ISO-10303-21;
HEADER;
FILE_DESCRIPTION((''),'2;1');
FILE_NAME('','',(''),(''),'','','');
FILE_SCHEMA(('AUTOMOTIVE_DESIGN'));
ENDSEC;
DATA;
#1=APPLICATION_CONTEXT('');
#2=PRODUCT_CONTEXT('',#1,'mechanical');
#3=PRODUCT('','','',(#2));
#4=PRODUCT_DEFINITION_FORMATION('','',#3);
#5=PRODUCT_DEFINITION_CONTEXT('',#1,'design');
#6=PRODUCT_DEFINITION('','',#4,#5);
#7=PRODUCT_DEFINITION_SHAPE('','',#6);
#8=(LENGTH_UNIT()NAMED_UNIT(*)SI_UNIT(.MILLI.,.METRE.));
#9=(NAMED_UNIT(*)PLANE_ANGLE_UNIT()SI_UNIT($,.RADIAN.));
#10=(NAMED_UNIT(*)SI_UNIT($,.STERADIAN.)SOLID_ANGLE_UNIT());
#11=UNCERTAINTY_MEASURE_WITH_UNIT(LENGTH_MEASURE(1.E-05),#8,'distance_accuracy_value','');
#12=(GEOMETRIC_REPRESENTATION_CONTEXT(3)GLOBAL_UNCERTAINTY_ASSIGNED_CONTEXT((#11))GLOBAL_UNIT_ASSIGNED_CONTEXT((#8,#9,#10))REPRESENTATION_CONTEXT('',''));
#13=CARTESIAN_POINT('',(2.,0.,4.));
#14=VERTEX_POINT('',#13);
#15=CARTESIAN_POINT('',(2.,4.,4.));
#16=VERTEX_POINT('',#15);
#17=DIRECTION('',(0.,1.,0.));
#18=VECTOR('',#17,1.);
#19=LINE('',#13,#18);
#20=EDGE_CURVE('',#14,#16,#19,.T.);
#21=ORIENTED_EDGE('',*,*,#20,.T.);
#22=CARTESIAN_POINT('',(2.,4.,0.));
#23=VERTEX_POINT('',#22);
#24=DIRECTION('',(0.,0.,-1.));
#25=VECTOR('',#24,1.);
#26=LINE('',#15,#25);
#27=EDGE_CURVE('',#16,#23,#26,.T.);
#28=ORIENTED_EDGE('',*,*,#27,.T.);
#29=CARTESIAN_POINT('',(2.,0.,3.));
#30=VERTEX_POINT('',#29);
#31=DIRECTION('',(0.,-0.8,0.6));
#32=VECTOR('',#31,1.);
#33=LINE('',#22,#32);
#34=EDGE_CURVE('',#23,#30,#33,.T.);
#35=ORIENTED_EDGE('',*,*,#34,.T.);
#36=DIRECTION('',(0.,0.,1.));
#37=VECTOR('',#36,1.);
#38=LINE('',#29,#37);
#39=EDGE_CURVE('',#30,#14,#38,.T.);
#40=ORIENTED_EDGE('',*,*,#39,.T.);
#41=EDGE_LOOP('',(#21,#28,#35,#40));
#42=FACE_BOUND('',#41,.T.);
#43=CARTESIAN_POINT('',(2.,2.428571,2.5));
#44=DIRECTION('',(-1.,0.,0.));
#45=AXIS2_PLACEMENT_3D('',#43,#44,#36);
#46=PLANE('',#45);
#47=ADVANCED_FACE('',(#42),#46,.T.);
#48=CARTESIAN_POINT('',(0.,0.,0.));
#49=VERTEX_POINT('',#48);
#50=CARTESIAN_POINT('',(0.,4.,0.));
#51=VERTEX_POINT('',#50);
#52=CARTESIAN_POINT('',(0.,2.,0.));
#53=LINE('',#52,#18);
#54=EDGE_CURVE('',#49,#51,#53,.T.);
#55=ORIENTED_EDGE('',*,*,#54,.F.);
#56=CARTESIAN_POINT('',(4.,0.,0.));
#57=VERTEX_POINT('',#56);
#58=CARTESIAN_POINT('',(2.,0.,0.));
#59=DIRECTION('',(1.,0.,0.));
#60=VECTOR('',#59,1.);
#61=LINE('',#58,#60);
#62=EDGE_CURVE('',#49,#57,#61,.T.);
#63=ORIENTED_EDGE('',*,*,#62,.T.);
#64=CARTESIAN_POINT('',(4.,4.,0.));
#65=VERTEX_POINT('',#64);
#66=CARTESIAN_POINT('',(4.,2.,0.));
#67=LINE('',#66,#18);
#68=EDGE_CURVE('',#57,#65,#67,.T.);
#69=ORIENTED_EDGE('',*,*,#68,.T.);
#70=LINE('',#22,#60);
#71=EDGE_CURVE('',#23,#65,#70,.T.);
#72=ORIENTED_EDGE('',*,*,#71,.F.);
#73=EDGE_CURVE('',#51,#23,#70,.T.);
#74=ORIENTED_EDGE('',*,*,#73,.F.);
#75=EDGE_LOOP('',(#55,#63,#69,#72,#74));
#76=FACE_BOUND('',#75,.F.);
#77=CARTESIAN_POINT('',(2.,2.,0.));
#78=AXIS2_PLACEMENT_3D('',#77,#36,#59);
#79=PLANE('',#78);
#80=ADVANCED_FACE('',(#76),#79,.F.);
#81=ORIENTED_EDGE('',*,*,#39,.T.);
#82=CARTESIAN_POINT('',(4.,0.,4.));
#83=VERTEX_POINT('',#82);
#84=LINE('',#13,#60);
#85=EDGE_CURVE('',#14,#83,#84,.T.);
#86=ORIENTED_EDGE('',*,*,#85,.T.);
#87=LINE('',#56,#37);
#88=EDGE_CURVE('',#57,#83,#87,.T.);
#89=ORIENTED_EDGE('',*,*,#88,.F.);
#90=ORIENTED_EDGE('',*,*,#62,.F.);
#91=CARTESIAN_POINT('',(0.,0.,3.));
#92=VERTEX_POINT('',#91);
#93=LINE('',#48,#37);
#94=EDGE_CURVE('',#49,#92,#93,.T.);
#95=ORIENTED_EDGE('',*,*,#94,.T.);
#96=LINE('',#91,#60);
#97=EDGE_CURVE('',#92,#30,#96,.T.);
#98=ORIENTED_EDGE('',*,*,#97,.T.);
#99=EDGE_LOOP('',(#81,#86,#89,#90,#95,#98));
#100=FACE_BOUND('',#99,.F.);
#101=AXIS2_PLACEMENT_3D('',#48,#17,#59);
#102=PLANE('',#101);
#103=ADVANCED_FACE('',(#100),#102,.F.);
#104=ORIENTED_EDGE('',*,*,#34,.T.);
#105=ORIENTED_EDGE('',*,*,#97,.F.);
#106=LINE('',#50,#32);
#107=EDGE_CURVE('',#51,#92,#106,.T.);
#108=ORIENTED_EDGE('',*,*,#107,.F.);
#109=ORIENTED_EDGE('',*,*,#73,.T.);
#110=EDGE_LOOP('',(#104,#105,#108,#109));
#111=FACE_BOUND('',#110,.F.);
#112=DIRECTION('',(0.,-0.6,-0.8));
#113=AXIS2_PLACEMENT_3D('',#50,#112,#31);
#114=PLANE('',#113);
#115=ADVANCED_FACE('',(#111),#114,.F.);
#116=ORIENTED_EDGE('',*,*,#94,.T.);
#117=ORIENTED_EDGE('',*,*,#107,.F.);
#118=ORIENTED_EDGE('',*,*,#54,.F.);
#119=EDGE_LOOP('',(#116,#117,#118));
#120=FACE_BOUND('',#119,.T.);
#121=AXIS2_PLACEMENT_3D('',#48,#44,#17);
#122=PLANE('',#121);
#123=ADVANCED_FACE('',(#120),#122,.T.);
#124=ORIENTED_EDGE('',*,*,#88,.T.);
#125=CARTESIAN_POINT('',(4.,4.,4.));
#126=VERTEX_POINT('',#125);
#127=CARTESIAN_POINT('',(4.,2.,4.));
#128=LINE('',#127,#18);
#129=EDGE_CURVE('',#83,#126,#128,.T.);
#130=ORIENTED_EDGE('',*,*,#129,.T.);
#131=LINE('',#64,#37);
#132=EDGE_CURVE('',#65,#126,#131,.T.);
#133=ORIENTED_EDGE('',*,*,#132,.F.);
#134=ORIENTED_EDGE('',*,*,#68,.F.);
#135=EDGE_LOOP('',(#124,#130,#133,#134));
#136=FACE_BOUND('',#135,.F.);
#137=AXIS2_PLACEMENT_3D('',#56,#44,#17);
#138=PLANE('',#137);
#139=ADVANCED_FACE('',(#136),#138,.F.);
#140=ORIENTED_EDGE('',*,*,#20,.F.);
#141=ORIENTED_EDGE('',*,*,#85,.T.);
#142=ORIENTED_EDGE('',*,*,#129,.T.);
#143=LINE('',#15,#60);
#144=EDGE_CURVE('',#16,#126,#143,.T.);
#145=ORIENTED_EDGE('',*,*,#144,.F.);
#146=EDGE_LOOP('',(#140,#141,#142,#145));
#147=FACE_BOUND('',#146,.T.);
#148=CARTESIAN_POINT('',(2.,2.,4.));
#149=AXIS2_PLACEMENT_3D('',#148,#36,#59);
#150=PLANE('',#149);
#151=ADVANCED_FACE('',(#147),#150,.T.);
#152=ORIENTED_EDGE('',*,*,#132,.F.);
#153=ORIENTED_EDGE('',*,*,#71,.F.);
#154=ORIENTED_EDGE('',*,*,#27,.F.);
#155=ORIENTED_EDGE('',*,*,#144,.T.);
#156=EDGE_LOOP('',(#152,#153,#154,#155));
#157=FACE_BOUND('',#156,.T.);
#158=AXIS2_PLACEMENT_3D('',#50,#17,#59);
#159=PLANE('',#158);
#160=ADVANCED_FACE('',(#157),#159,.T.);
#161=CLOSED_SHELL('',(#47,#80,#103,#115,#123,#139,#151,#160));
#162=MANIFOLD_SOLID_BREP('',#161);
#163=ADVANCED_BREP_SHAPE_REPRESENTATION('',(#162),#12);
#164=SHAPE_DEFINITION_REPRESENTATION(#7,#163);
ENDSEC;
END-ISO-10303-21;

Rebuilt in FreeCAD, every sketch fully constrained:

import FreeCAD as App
import Part
import Sketcher
from FreeCAD import Vector


def add_polygon(sketch, points):
    """Adds a closed chain of lines whose ends are joined by coincident constraints."""
    first, n = sketch.GeometryCount, len(points)
    for a, b in zip(points, points[1:] + points[:1]):
        sketch.addGeometry(Part.LineSegment(App.Vector(*a, 0), App.Vector(*b, 0)), False)
    for i in range(n):
        sketch.addConstraint(Sketcher.Constraint("Coincident", first + i, 2, first + (i + 1) % n, 1))

doc = App.newDocument("Part")
body = doc.addObject("PartDesign::Body", "Body")

sketch1 = body.newObject("Sketcher::SketchObject", "Sketch")
sketch1.AttachmentSupport = (doc.getObject("XY_Plane"), [""])
sketch1.MapMode = "FlatFace"
add_polygon(sketch1, [(0, 4), (0, 0), (4, 0), (4, 4)])
sketch1.addConstraint([
    Sketcher.Constraint("Vertical", 0),
    Sketcher.Constraint("Horizontal", 1),
    Sketcher.Constraint("Vertical", 2),
    Sketcher.Constraint("Horizontal", 3),
    Sketcher.Constraint("Coincident", 0, 2, -1, 1),
    Sketcher.Constraint("Equal", 3, 0),
    Sketcher.Constraint("DistanceX", 1, 1, 1, 2, 4.0),
])
pad1 = body.newObject("PartDesign::Pad", "Pad")
pad1.Profile = sketch1
pad1.Length = 4

sketch2 = body.newObject("Sketcher::SketchObject", "Sketch001")
sketch2.AttachmentSupport = (doc.getObject("YZ_Plane"), [""])
sketch2.MapMode = "FlatFace"
add_polygon(sketch2, [(4, 0), (0, 3), (0, 4), (4, 4)])
sketch2.addConstraint([
    Sketcher.Constraint("Vertical", 1),
    Sketcher.Constraint("Horizontal", 2),
    Sketcher.Constraint("Vertical", 3),
    Sketcher.Constraint("PointOnObject", 0, 2, -2),
    Sketcher.Constraint("PointOnObject", 3, 2, -1),
    Sketcher.Constraint("Equal", 2, 3),
    Sketcher.Constraint("DistanceX", 2, 1, 2, 2, 4.0),
    Sketcher.Constraint("DistanceY", 1, 1, 1, 2, 1.0),
])
pocket1 = body.newObject("PartDesign::Pocket", "Pocket")
pocket1.Profile = sketch2
pocket1.Length = 2
pocket1.Reversed = True

doc.recompute()
